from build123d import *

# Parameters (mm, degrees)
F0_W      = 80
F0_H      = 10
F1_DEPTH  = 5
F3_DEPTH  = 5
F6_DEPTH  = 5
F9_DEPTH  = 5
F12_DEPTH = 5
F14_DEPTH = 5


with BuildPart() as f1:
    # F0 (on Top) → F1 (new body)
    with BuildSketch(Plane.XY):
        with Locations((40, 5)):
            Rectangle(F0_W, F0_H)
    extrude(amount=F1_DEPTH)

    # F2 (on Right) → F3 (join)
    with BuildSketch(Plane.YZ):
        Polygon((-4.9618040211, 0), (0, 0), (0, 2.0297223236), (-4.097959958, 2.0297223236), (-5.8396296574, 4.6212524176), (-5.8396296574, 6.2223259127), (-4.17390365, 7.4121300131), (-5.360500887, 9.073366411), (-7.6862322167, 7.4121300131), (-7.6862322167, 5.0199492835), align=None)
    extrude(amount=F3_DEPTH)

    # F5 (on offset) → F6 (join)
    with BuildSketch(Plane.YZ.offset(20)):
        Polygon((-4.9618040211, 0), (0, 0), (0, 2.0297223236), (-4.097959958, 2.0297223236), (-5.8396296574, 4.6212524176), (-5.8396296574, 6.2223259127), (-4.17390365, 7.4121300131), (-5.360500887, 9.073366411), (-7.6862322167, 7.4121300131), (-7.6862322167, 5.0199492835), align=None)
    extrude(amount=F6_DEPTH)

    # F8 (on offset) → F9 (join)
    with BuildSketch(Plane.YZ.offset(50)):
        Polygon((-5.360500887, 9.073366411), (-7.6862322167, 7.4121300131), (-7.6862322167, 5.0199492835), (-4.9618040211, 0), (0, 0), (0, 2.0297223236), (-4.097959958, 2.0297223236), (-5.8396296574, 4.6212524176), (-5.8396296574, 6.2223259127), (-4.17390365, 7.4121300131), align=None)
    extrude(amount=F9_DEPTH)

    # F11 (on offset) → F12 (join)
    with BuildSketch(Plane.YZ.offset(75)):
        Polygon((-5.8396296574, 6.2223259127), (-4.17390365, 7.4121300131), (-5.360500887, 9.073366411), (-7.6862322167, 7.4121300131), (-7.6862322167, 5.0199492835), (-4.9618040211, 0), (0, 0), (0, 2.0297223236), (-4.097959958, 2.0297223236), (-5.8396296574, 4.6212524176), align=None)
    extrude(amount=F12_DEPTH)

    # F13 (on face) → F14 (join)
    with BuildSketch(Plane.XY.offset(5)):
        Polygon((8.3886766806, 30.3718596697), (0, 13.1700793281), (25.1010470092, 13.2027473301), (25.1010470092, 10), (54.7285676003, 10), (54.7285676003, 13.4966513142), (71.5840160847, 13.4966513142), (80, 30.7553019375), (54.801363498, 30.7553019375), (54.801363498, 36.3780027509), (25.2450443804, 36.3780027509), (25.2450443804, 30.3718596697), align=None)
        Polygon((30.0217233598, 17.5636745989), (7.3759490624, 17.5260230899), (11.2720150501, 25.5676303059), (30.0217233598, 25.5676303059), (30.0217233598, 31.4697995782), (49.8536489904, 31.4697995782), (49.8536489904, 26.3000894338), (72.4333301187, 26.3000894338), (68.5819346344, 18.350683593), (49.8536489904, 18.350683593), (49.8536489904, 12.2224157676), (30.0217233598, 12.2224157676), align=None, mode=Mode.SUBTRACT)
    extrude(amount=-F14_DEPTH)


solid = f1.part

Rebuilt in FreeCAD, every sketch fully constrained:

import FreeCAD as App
import Part
import Sketcher
from FreeCAD import Vector
Q = App.Units.Quantity

doc = App.newDocument("Part")
body = doc.addObject("PartDesign::Body", "Body")

# Sketch on XY plane
sketch1 = body.newObject("Sketcher::SketchObject", "Sketch")
sketch1.AttachmentSupport = (doc.getObject("XY_Plane"), [""])
sketch1.MapMode = "FlatFace"
sketch1.addGeometry([
    Part.LineSegment(Vector(0, 10, 0), Vector(0, 0, 0)),
    Part.LineSegment(Vector(0, 0, 0), Vector(80, 0, 0)),
    Part.LineSegment(Vector(80, 0, 0), Vector(80, 10, 0)),
    Part.LineSegment(Vector(80, 10, 0), Vector(0, 10, 0)),
], False)
sketch1.addConstraint([
    Sketcher.Constraint("Coincident", 0, 2, 1, 1),
    Sketcher.Constraint("Coincident", 1, 2, 2, 1),
    Sketcher.Constraint("Coincident", 2, 2, 3, 1),
    Sketcher.Constraint("Coincident", 3, 2, 0, 1),
    Sketcher.Constraint("Vertical", 0),
    Sketcher.Constraint("Horizontal", 1),
    Sketcher.Constraint("Vertical", 2),
    Sketcher.Constraint("Horizontal", 3),
    Sketcher.Constraint("Coincident", 0, 2, -1, 1),
    Sketcher.Constraint("DistanceX", 1, 1, 1, 2, Q("80 mm")),
    Sketcher.Constraint("DistanceY", 0, 2, 0, 1, Q("10 mm")),
])
pad1 = body.newObject("PartDesign::Pad", "Pad")
pad1.Profile = sketch1
pad1.Length = 5

# Sketch on YZ plane
sketch2 = body.newObject("Sketcher::SketchObject", "Sketch001")
sketch2.AttachmentSupport = (doc.getObject("YZ_Plane"), [""])
sketch2.MapMode = "FlatFace"
sketch2.addGeometry([
    Part.LineSegment(Vector(-5, 0, 0), Vector(0, 0, 0)),  # 0
    Part.LineSegment(Vector(0, 0, 0), Vector(0, 2, 0)),  # 1
    Part.LineSegment(Vector(0, 2, 0), Vector(-4.1, 2, 0)),  # 2
    Part.LineSegment(Vector(-4.1, 2, 0), Vector(-5.8, 4.6, 0)),  # 3
    Part.LineSegment(Vector(-5.8, 4.6, 0), Vector(-5.8, 6.2, 0)),  # 4
    Part.LineSegment(Vector(-5.8, 6.2, 0), Vector(-4.2, 7.4, 0)),  # 5
    Part.LineSegment(Vector(-4.2, 7.4, 0), Vector(-5.4, 9.1, 0)),  # 6
    Part.LineSegment(Vector(-5.4, 9.1, 0), Vector(-7.7, 7.4, 0)),  # 7
    Part.LineSegment(Vector(-7.7, 7.4, 0), Vector(-7.7, 5, 0)),  # 8
    Part.LineSegment(Vector(-7.7, 5, 0), Vector(-5, 0, 0)),  # 9
], False)
sketch2.addConstraint([
    Sketcher.Constraint("Coincident", 0, 2, 1, 1),
    Sketcher.Constraint("Coincident", 1, 2, 2, 1),
    Sketcher.Constraint("Coincident", 2, 2, 3, 1),
    Sketcher.Constraint("Coincident", 3, 2, 4, 1),
    Sketcher.Constraint("Coincident", 4, 2, 5, 1),
    Sketcher.Constraint("Coincident", 5, 2, 6, 1),
    Sketcher.Constraint("Coincident", 6, 2, 7, 1),
    Sketcher.Constraint("Coincident", 7, 2, 8, 1),
    Sketcher.Constraint("Coincident", 8, 2, 9, 1),
    Sketcher.Constraint("Coincident", 9, 2, 0, 1),
    Sketcher.Constraint("Horizontal", 0),
    Sketcher.Constraint("Vertical", 1),
    Sketcher.Constraint("Horizontal", 2),
    Sketcher.Constraint("Vertical", 4),
    Sketcher.Constraint("Vertical", 8),
    Sketcher.Constraint("Coincident", 0, 2, -1, 1),
    Sketcher.Constraint("Perpendicular", 5, 6),
    Sketcher.Constraint("Perpendicular", 6, 7),
    Sketcher.Constraint("Horizontal", 5, 2, 7, 2),
    Sketcher.Constraint("Distance", 6, Q("2.041499 mm")),
    Sketcher.Constraint("Distance", 7, Q("2.858099 mm")),
    Sketcher.Constraint("DistanceX", 2, 2, 2, 1, Q("4.09796 mm")),
    Sketcher.Constraint("DistanceY", 8, 2, 8, 1, Q("2.392181 mm")),
    Sketcher.Constraint("DistanceX", 6, 2, -1, 1, Q("5.360501 mm")),
    Sketcher.Constraint("Distance", 3, Q("3.12241 mm")),
    Sketcher.Constraint("DistanceX", 0, 1, 0, 2, Q("4.961804 mm")),
    Sketcher.Constraint("DistanceY", 1, 1, 1, 2, Q("2.029722 mm")),
    Sketcher.Constraint("DistanceY", 4, 1, 4, 2, Q("1.601073 mm")),
    Sketcher.Constraint("DistanceX", 3, 2, -1, 1, Q("5.83963 mm")),
])
pad2 = body.newObject("PartDesign::Pad", "Pad001")
pad2.Profile = sketch2
pad2.Length = 5

# Sketch on YZ plane
sketch3 = body.newObject("Sketcher::SketchObject", "Sketch002")
sketch3.AttachmentSupport = (doc.getObject("YZ_Plane"), [""])
sketch3.MapMode = "FlatFace"
sketch3.AttachmentOffset = App.Placement(Vector(0, 0, 20), App.Rotation())
sketch3.addGeometry([
    Part.LineSegment(Vector(-5, 0, 0), Vector(0, 0, 0)),  # 0
    Part.LineSegment(Vector(0, 0, 0), Vector(0, 2, 0)),  # 1
    Part.LineSegment(Vector(0, 2, 0), Vector(-4.1, 2, 0)),  # 2
    Part.LineSegment(Vector(-4.1, 2, 0), Vector(-5.8, 4.6, 0)),  # 3
    Part.LineSegment(Vector(-5.8, 4.6, 0), Vector(-5.8, 6.2, 0)),  # 4
    Part.LineSegment(Vector(-5.8, 6.2, 0), Vector(-4.2, 7.4, 0)),  # 5
    Part.LineSegment(Vector(-4.2, 7.4, 0), Vector(-5.4, 9.1, 0)),  # 6
    Part.LineSegment(Vector(-5.4, 9.1, 0), Vector(-7.7, 7.4, 0)),  # 7
    Part.LineSegment(Vector(-7.7, 7.4, 0), Vector(-7.7, 5, 0)),  # 8
    Part.LineSegment(Vector(-7.7, 5, 0), Vector(-5, 0, 0)),  # 9
], False)
sketch3.addConstraint([
    Sketcher.Constraint("Coincident", 0, 2, 1, 1),
    Sketcher.Constraint("Coincident", 1, 2, 2, 1),
    Sketcher.Constraint("Coincident", 2, 2, 3, 1),
    Sketcher.Constraint("Coincident", 3, 2, 4, 1),
    Sketcher.Constraint("Coincident", 4, 2, 5, 1),
    Sketcher.Constraint("Coincident", 5, 2, 6, 1),
    Sketcher.Constraint("Coincident", 6, 2, 7, 1),
    Sketcher.Constraint("Coincident", 7, 2, 8, 1),
    Sketcher.Constraint("Coincident", 8, 2, 9, 1),
    Sketcher.Constraint("Coincident", 9, 2, 0, 1),
    Sketcher.Constraint("Horizontal", 0),
    Sketcher.Constraint("Vertical", 1),
    Sketcher.Constraint("Horizontal", 2),
    Sketcher.Constraint("Vertical", 4),
    Sketcher.Constraint("Vertical", 8),
    Sketcher.Constraint("Coincident", 0, 2, -1, 1),
    Sketcher.Constraint("Perpendicular", 5, 6),
    Sketcher.Constraint("Perpendicular", 6, 7),
    Sketcher.Constraint("Horizontal", 5, 2, 7, 2),
    Sketcher.Constraint("Distance", 6, Q("2.041499 mm")),
    Sketcher.Constraint("Distance", 7, Q("2.858099 mm")),
    Sketcher.Constraint("DistanceX", 2, 2, 2, 1, Q("4.09796 mm")),
    Sketcher.Constraint("DistanceY", 8, 2, 8, 1, Q("2.392181 mm")),
    Sketcher.Constraint("DistanceX", 6, 2, -1, 1, Q("5.360501 mm")),
    Sketcher.Constraint("Distance", 3, Q("3.12241 mm")),
    Sketcher.Constraint("DistanceX", 0, 1, 0, 2, Q("4.961804 mm")),
    Sketcher.Constraint("DistanceY", 1, 1, 1, 2, Q("2.029722 mm")),
    Sketcher.Constraint("DistanceY", 4, 1, 4, 2, Q("1.601073 mm")),
    Sketcher.Constraint("DistanceX", 3, 2, -1, 1, Q("5.83963 mm")),
])
pad3 = body.newObject("PartDesign::Pad", "Pad002")
pad3.Profile = sketch3
pad3.Length = 5

# Sketch on YZ plane
sketch4 = body.newObject("Sketcher::SketchObject", "Sketch003")
sketch4.AttachmentSupport = (doc.getObject("YZ_Plane"), [""])
sketch4.MapMode = "FlatFace"
sketch4.AttachmentOffset = App.Placement(Vector(0, 0, 50), App.Rotation())
sketch4.addGeometry([
    Part.LineSegment(Vector(-5.4, 9.1, 0), Vector(-7.7, 7.4, 0)),  # 0
    Part.LineSegment(Vector(-7.7, 7.4, 0), Vector(-7.7, 5, 0)),  # 1
    Part.LineSegment(Vector(-7.7, 5, 0), Vector(-5, 0, 0)),  # 2
    Part.LineSegment(Vector(-5, 0, 0), Vector(0, 0, 0)),  # 3
    Part.LineSegment(Vector(0, 0, 0), Vector(0, 2, 0)),  # 4
    Part.LineSegment(Vector(0, 2, 0), Vector(-4.1, 2, 0)),  # 5
    Part.LineSegment(Vector(-4.1, 2, 0), Vector(-5.8, 4.6, 0)),  # 6
    Part.LineSegment(Vector(-5.8, 4.6, 0), Vector(-5.8, 6.2, 0)),  # 7
    Part.LineSegment(Vector(-5.8, 6.2, 0), Vector(-4.2, 7.4, 0)),  # 8
    Part.LineSegment(Vector(-4.2, 7.4, 0), Vector(-5.4, 9.1, 0)),  # 9
], False)
sketch4.addConstraint([
    Sketcher.Constraint("Coincident", 0, 2, 1, 1),
    Sketcher.Constraint("Coincident", 1, 2, 2, 1),
    Sketcher.Constraint("Coincident", 2, 2, 3, 1),
    Sketcher.Constraint("Coincident", 3, 2, 4, 1),
    Sketcher.Constraint("Coincident", 4, 2, 5, 1),
    Sketcher.Constraint("Coincident", 5, 2, 6, 1),
    Sketcher.Constraint("Coincident", 6, 2, 7, 1),
    Sketcher.Constraint("Coincident", 7, 2, 8, 1),
    Sketcher.Constraint("Coincident", 8, 2, 9, 1),
    Sketcher.Constraint("Coincident", 9, 2, 0, 1),
    Sketcher.Constraint("Vertical", 1),
    Sketcher.Constraint("Horizontal", 3),
    Sketcher.Constraint("Vertical", 4),
    Sketcher.Constraint("Horizontal", 5),
    Sketcher.Constraint("Vertical", 7),
    Sketcher.Constraint("Coincident", 3, 2, -1, 1),
    Sketcher.Constraint("Parallel", 0, 8),
    Sketcher.Constraint("Perpendicular", 8, 9),
    Sketcher.Constraint("Horizontal", 0, 2, 8, 2),
    Sketcher.Constraint("Distance", 0, Q("2.858099 mm")),
    Sketcher.Constraint("Distance", 9, Q("2.041499 mm")),
    Sketcher.Constraint("DistanceX", 5, 2, 5, 1, Q("4.09796 mm")),
    Sketcher.Constraint("DistanceY", 1, 2, 1, 1, Q("2.392181 mm")),
    Sketcher.Constraint("DistanceX", 9, 2, -1, 1, Q("5.360501 mm")),
    Sketcher.Constraint("Distance", 6, Q("3.12241 mm")),
    Sketcher.Constraint("DistanceX", 3, 1, 3, 2, Q("4.961804 mm")),
    Sketcher.Constraint("DistanceY", 4, 1, 4, 2, Q("2.029722 mm")),
    Sketcher.Constraint("DistanceY", 7, 1, 7, 2, Q("1.601073 mm")),
    Sketcher.Constraint("DistanceY", -1, 1, 0, 2, Q("7.41213 mm")),
])
pad4 = body.newObject("PartDesign::Pad", "Pad003")
pad4.Profile = sketch4
pad4.Length = 5

# Sketch on YZ plane
sketch5 = body.newObject("Sketcher::SketchObject", "Sketch004")
sketch5.AttachmentSupport = (doc.getObject("YZ_Plane"), [""])
sketch5.MapMode = "FlatFace"
sketch5.AttachmentOffset = App.Placement(Vector(0, 0, 75), App.Rotation())
sketch5.addGeometry([
    Part.LineSegment(Vector(-5.8, 6.2, 0), Vector(-4.2, 7.4, 0)),  # 0
    Part.LineSegment(Vector(-4.2, 7.4, 0), Vector(-5.4, 9.1, 0)),  # 1
    Part.LineSegment(Vector(-5.4, 9.1, 0), Vector(-7.7, 7.4, 0)),  # 2
    Part.LineSegment(Vector(-7.7, 7.4, 0), Vector(-7.7, 5, 0)),  # 3
    Part.LineSegment(Vector(-7.7, 5, 0), Vector(-5, 0, 0)),  # 4
    Part.LineSegment(Vector(-5, 0, 0), Vector(0, 0, 0)),  # 5
    Part.LineSegment(Vector(0, 0, 0), Vector(0, 2, 0)),  # 6
    Part.LineSegment(Vector(0, 2, 0), Vector(-4.1, 2, 0)),  # 7
    Part.LineSegment(Vector(-4.1, 2, 0), Vector(-5.8, 4.6, 0)),  # 8
    Part.LineSegment(Vector(-5.8, 4.6, 0), Vector(-5.8, 6.2, 0)),  # 9
], False)
sketch5.addConstraint([
    Sketcher.Constraint("Coincident", 0, 2, 1, 1),
    Sketcher.Constraint("Coincident", 1, 2, 2, 1),
    Sketcher.Constraint("Coincident", 2, 2, 3, 1),
    Sketcher.Constraint("Coincident", 3, 2, 4, 1),
    Sketcher.Constraint("Coincident", 4, 2, 5, 1),
    Sketcher.Constraint("Coincident", 5, 2, 6, 1),
    Sketcher.Constraint("Coincident", 6, 2, 7, 1),
    Sketcher.Constraint("Coincident", 7, 2, 8, 1),
    Sketcher.Constraint("Coincident", 8, 2, 9, 1),
    Sketcher.Constraint("Coincident", 9, 2, 0, 1),
    Sketcher.Constraint("Vertical", 3),
    Sketcher.Constraint("Horizontal", 5),
    Sketcher.Constraint("Vertical", 6),
    Sketcher.Constraint("Horizontal", 7),
    Sketcher.Constraint("Vertical", 9),
    Sketcher.Constraint("Coincident", 5, 2, -1, 1),
    Sketcher.Constraint("Perpendicular", 0, 1),
    Sketcher.Constraint("Perpendicular", 1, 2),
    Sketcher.Constraint("Horizontal", 0, 2, 2, 2),
    Sketcher.Constraint("Distance", 1, Q("2.041499 mm")),
    Sketcher.Constraint("Distance", 2, Q("2.858099 mm")),
    Sketcher.Constraint("DistanceX", 7, 2, 7, 1, Q("4.09796 mm")),
    Sketcher.Constraint("DistanceY", 3, 2, 3, 1, Q("2.392181 mm")),
    Sketcher.Constraint("DistanceX", 1, 2, -1, 1, Q("5.360501 mm")),
    Sketcher.Constraint("DistanceX", 4, 2, 0, 2, Q("0.7879 mm")),
    Sketcher.Constraint("Distance", 8, Q("3.12241 mm")),
    Sketcher.Constraint("DistanceY", 6, 1, 6, 2, Q("2.029722 mm")),
    Sketcher.Constraint("DistanceY", 9, 1, 9, 2, Q("1.601073 mm")),
    Sketcher.Constraint("DistanceY", -1, 1, 0, 2, Q("7.41213 mm")),
])
pad5 = body.newObject("PartDesign::Pad", "Pad004")
pad5.Profile = sketch5
pad5.Length = 5

# Sketch on XY plane
sketch6 = body.newObject("Sketcher::SketchObject", "Sketch005")
sketch6.AttachmentSupport = (doc.getObject("XY_Plane"), [""])
sketch6.MapMode = "FlatFace"
sketch6.AttachmentOffset = App.Placement(Vector(0, 0, 5), App.Rotation())
sketch6.addGeometry([
    Part.LineSegment(Vector(8.4, 30.4, 0), Vector(0, 13.2, 0)),  # 0
    Part.LineSegment(Vector(0, 13.2, 0), Vector(25.1, 13.2, 0)),  # 1
    Part.LineSegment(Vector(25.1, 13.2, 0), Vector(25.1, 10, 0)),  # 2
    Part.LineSegment(Vector(25.1, 10, 0), Vector(54.7, 10, 0)),  # 3
    Part.LineSegment(Vector(54.7, 10, 0), Vector(54.7, 13.5, 0)),  # 4
    Part.LineSegment(Vector(54.7, 13.5, 0), Vector(71.6, 13.5, 0)),  # 5
    Part.LineSegment(Vector(71.6, 13.5, 0), Vector(80, 30.8, 0)),  # 6
    Part.LineSegment(Vector(80, 30.8, 0), Vector(54.8, 30.8, 0)),  # 7
    Part.LineSegment(Vector(54.8, 30.8, 0), Vector(54.8, 36.4, 0)),  # 8
    Part.LineSegment(Vector(54.8, 36.4, 0), Vector(25.2, 36.4, 0)),  # 9
    Part.LineSegment(Vector(25.2, 36.4, 0), Vector(25.2, 30.4, 0)),  # 10
    Part.LineSegment(Vector(25.2, 30.4, 0), Vector(8.4, 30.4, 0)),  # 11
    Part.LineSegment(Vector(30, 12.2, 0), Vector(30, 17.6, 0)),  # 12
    Part.LineSegment(Vector(30, 17.6, 0), Vector(7.4, 17.5, 0)),  # 13
    Part.LineSegment(Vector(7.4, 17.5, 0), Vector(11.3, 25.6, 0)),  # 14
    Part.LineSegment(Vector(11.3, 25.6, 0), Vector(30, 25.6, 0)),  # 15
    Part.LineSegment(Vector(30, 25.6, 0), Vector(30, 31.5, 0)),  # 16
    Part.LineSegment(Vector(30, 31.5, 0), Vector(49.9, 31.5, 0)),  # 17
    Part.LineSegment(Vector(49.9, 31.5, 0), Vector(49.9, 26.3, 0)),  # 18
    Part.LineSegment(Vector(49.9, 26.3, 0), Vector(72.4, 26.3, 0)),  # 19
    Part.LineSegment(Vector(72.4, 26.3, 0), Vector(68.6, 18.4, 0)),  # 20
    Part.LineSegment(Vector(68.6, 18.4, 0), Vector(49.9, 18.4, 0)),  # 21
    Part.LineSegment(Vector(49.9, 18.4, 0), Vector(49.9, 12.2, 0)),  # 22
    Part.LineSegment(Vector(49.9, 12.2, 0), Vector(30, 12.2, 0)),  # 23
], False)
sketch6.addConstraint([
    Sketcher.Constraint("Coincident", 0, 2, 1, 1),
    Sketcher.Constraint("Coincident", 1, 2, 2, 1),
    Sketcher.Constraint("Coincident", 2, 2, 3, 1),
    Sketcher.Constraint("Coincident", 3, 2, 4, 1),
    Sketcher.Constraint("Coincident", 4, 2, 5, 1),
    Sketcher.Constraint("Coincident", 5, 2, 6, 1),
    Sketcher.Constraint("Coincident", 6, 2, 7, 1),
    Sketcher.Constraint("Coincident", 7, 2, 8, 1),
    Sketcher.Constraint("Coincident", 8, 2, 9, 1),
    Sketcher.Constraint("Coincident", 9, 2, 10, 1),
    Sketcher.Constraint("Coincident", 10, 2, 11, 1),
    Sketcher.Constraint("Coincident", 11, 2, 0, 1),
    Sketcher.Constraint("Coincident", 12, 2, 13, 1),
    Sketcher.Constraint("Coincident", 13, 2, 14, 1),
    Sketcher.Constraint("Coincident", 14, 2, 15, 1),
    Sketcher.Constraint("Coincident", 15, 2, 16, 1),
    Sketcher.Constraint("Coincident", 16, 2, 17, 1),
    Sketcher.Constraint("Coincident", 17, 2, 18, 1),
    Sketcher.Constraint("Coincident", 18, 2, 19, 1),
    Sketcher.Constraint("Coincident", 19, 2, 20, 1),
    Sketcher.Constraint("Coincident", 20, 2, 21, 1),
    Sketcher.Constraint("Coincident", 21, 2, 22, 1),
    Sketcher.Constraint("Coincident", 22, 2, 23, 1),
    Sketcher.Constraint("Coincident", 23, 2, 12, 1),
    Sketcher.Constraint("Vertical", 2),
    Sketcher.Constraint("Horizontal", 3),
    Sketcher.Constraint("Vertical", 4),
    Sketcher.Constraint("Horizontal", 5),
    Sketcher.Constraint("Horizontal", 7),
    Sketcher.Constraint("Vertical", 8),
    Sketcher.Constraint("Horizontal", 9),
    Sketcher.Constraint("Vertical", 10),
    Sketcher.Constraint("Horizontal", 11),
    Sketcher.Constraint("Vertical", 12),
    Sketcher.Constraint("Horizontal", 15),
    Sketcher.Constraint("Vertical", 16),
    Sketcher.Constraint("Horizontal", 17),
    Sketcher.Constraint("Vertical", 18),
    Sketcher.Constraint("Horizontal", 19),
    Sketcher.Constraint("Horizontal", 21),
    Sketcher.Constraint("Vertical", 22),
    Sketcher.Constraint("Horizontal", 23),
    Sketcher.Constraint("PointOnObject", 0, 2, -2),
    Sketcher.Constraint("Parallel", 14, 20),
    Sketcher.Constraint("Vertical", 12, 2, 15, 2),
    Sketcher.Constraint("Vertical", 18, 2, 21, 2),
    Sketcher.Constraint("DistanceY", -1, 1, 2, 2, Q("10 mm")),
    Sketcher.Constraint("DistanceX", -1, 1, 6, 2, Q("80 mm")),
    Sketcher.Constraint("DistanceY", 8, 1, 8, 2, Q("5.622701 mm")),
    Sketcher.Constraint("DistanceX", 3, 1, 3, 2, Q("29.627521 mm")),
    Sketcher.Constraint("DistanceX", 5, 1, 5, 2, Q("16.855448 mm")),
    Sketcher.Constraint("DistanceX", 9, 2, 9, 1, Q("29.556319 mm")),
    Sketcher.Constraint("DistanceX", 15, 1, 15, 2, Q("18.749708 mm")),
    Sketcher.Constraint("DistanceX", 19, 1, 19, 2, Q("22.579681 mm")),
    Sketcher.Constraint("DistanceY", 4, 1, 4, 2, Q("3.496651 mm")),
    Sketcher.Constraint("DistanceY", 12, 1, 12, 2, Q("5.341259 mm")),
    Sketcher.Constraint("DistanceY", 16, 1, 16, 2, Q("5.902169 mm")),
    Sketcher.Constraint("DistanceY", 18, 2, 18, 1, Q("5.16971 mm")),
    Sketcher.Constraint("DistanceY", -1, 1, 6, 2, Q("30.755302 mm")),
    Sketcher.Constraint("DistanceY", -1, 1, 16, 2, Q("31.4698 mm")),
    Sketcher.Constraint("Distance", 0, Q("19.138212 mm")),
    Sketcher.Constraint("Distance", 1, Q("25.101068 mm")),
    Sketcher.Constraint("Distance", 20, Q("8.83325 mm")),
    Sketcher.Constraint("DistanceX", 7, 2, 7, 1, Q("25.198637 mm")),
    Sketcher.Constraint("DistanceX", 11, 2, 11, 1, Q("16.856368 mm")),
    Sketcher.Constraint("DistanceX", 17, 1, 17, 2, Q("19.831926 mm")),
    Sketcher.Constraint("DistanceX", 21, 2, 21, 1, Q("18.728286 mm")),
    Sketcher.Constraint("DistanceY", 2, 2, 2, 1, Q("3.202747 mm")),
    Sketcher.Constraint("DistanceY", 10, 2, 10, 1, Q("6.006143 mm")),
    Sketcher.Constraint("DistanceY", 22, 2, 22, 1, Q("6.128268 mm")),
    Sketcher.Constraint("DistanceX", -1, 1, 13, 2, Q("7.375949 mm")),
    Sketcher.Constraint("DistanceX", -1, 1, 17, 2, Q("49.853649 mm")),
])
pad6 = body.newObject("PartDesign::Pad", "Pad005")
pad6.Profile = sketch6
pad6.Length = 5
pad6.Reversed = True

doc.recompute()
